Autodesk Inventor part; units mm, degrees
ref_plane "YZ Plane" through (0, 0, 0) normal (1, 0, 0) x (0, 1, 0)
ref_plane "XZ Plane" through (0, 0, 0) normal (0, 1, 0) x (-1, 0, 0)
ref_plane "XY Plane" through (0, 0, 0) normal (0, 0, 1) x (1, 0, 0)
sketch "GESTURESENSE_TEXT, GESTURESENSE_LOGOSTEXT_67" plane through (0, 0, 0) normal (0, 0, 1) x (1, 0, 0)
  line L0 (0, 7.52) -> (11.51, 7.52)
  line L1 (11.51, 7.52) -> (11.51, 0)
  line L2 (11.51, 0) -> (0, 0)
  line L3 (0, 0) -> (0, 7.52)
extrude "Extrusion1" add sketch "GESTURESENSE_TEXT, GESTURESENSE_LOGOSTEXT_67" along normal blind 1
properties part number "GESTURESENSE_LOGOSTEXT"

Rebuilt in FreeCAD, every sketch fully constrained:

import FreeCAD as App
import Part
import Sketcher

V = App.Vector


def add_polygon(sketch, points):
    """Adds a closed chain of lines whose ends are joined by coincident constraints."""
    first, n = sketch.GeometryCount, len(points)
    for a, b in zip(points, points[1:] + points[:1]):
        sketch.addGeometry(Part.LineSegment(App.Vector(*a, 0), App.Vector(*b, 0)), False)
    for i in range(n):
        sketch.addConstraint(Sketcher.Constraint("Coincident", first + i, 2, first + (i + 1) % n, 1))

doc = App.newDocument("Part")
params = doc.addObject("Spreadsheet::Sheet", "Params")
for row, (alias, value) in enumerate([
    ("sketch1_width", "11.51 mm"),
    ("sketch1_height", "7.52 mm"),
    ("pad1_length", "1 mm"),
], start=1):
    params.set(f"A{row}", alias)
    params.set(f"B{row}", "=" + value)
    params.setAlias(f"B{row}", alias)

body = doc.addObject("PartDesign::Body", "Body")

sketch1 = body.newObject("Sketcher::SketchObject", "Sketch")
sketch1.AttachmentSupport = (doc.getObject("XY_Plane"), [""])
sketch1.MapMode = "FlatFace"
add_polygon(sketch1, [(11.51, 7.52), (0, 7.52), (0, 0), (11.51, 0)])
sketch1.addConstraint(Sketcher.Constraint("Horizontal", 0))
sketch1.addConstraint(Sketcher.Constraint("Vertical", 1))
sketch1.addConstraint(Sketcher.Constraint("Horizontal", 2))
sketch1.addConstraint(Sketcher.Constraint("Vertical", 3))
sketch1.addConstraint(Sketcher.Constraint("Coincident", 1, 2, -1, 1))
sketch1.addConstraint(Sketcher.Constraint("DistanceX", 0, 2, 0, 1, 11.51))
sketch1.addConstraint(Sketcher.Constraint("DistanceY", 1, 2, 1, 1, 7.52))
sketch1.setExpression("Constraints[9]", "Params.sketch1_width")
sketch1.setExpression("Constraints[10]", "Params.sketch1_height")
pad1 = body.newObject("PartDesign::Pad", "Pad")
pad1.Profile = sketch1
pad1.setExpression("Length", "Params.pad1_length")

doc.recompute()
